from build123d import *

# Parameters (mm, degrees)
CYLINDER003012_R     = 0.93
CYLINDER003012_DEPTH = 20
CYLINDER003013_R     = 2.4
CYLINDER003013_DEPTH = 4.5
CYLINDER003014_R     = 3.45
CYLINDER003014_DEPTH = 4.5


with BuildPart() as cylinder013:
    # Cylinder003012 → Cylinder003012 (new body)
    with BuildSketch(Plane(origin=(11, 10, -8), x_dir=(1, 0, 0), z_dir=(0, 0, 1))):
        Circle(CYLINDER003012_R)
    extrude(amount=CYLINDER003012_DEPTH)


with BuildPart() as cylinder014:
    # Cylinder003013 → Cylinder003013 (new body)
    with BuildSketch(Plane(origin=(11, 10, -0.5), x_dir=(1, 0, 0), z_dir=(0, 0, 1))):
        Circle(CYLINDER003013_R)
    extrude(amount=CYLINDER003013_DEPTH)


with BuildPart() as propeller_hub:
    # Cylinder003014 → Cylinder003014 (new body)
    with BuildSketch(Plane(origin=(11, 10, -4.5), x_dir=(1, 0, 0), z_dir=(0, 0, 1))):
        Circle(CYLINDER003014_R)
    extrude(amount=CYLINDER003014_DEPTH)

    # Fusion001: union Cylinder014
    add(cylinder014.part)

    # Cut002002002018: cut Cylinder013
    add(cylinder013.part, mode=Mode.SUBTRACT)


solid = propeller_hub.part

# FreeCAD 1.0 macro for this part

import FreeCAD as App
import Part
import Sketcher

doc = App.newDocument("Part")
body = doc.addObject("PartDesign::Body", "Body")

# Sketch on XY plane
sketch1 = body.newObject("Sketcher::SketchObject", "Sketch")
sketch1.AttachmentSupport = (doc.getObject("XY_Plane"), [""])
sketch1.MapMode = "FlatFace"
sketch1.AttachmentOffset = App.Placement(App.Vector(0, 0, -8), App.Rotation())
sketch1.addGeometry(Part.Circle(App.Vector(11, 10, 0), App.Vector(0, 0, 1), 0.9), False)
sketch1.addConstraint([
    Sketcher.Constraint("Diameter", 0, 1.86),
    Sketcher.Constraint("DistanceX", -1, 1, 0, 3, 11.0),
    Sketcher.Constraint("DistanceY", -1, 1, 0, 3, 10.0),
])
pad1 = body.newObject("PartDesign::Pad", "Pad")
pad1.Profile = sketch1
pad1.Length = 20
body2 = doc.addObject("PartDesign::Body", "Body001")

# Sketch on XY plane
sketch2 = body2.newObject("Sketcher::SketchObject", "Sketch001")
sketch2.AttachmentSupport = (doc.getObject("XY_Plane001"), [""])
sketch2.MapMode = "FlatFace"
sketch2.AttachmentOffset = App.Placement(App.Vector(0, 0, -0.5), App.Rotation())
sketch2.addGeometry(Part.Circle(App.Vector(11, 10, 0), App.Vector(0, 0, 1), 2.4), False)
sketch2.addConstraint([
    Sketcher.Constraint("Diameter", 0, 4.8),
    Sketcher.Constraint("DistanceX", -1, 1, 0, 3, 11.0),
    Sketcher.Constraint("DistanceY", -1, 1, 0, 3, 10.0),
])
pad2 = body2.newObject("PartDesign::Pad", "Pad001")
pad2.Profile = sketch2
pad2.Length = 4.5
body3 = doc.addObject("PartDesign::Body", "Body002")

# Sketch on XY plane
sketch3 = body3.newObject("Sketcher::SketchObject", "Sketch002")
sketch3.AttachmentSupport = (doc.getObject("XY_Plane002"), [""])
sketch3.MapMode = "FlatFace"
sketch3.AttachmentOffset = App.Placement(App.Vector(0, 0, -4.5), App.Rotation())
sketch3.addGeometry(Part.Circle(App.Vector(11, 10, 0), App.Vector(0, 0, 1), 3.5), False)
sketch3.addConstraint([
    Sketcher.Constraint("Diameter", 0, 6.9),
    Sketcher.Constraint("DistanceX", -1, 1, 0, 3, 11.0),
    Sketcher.Constraint("DistanceY", -1, 1, 0, 3, 10.0),
])
pad3 = body3.newObject("PartDesign::Pad", "Pad002")
pad3.Profile = sketch3
pad3.Length = 4.5
doc.recompute()

boolean = body3.newObject("PartDesign::Boolean", "Boolean")
boolean.Type = "Fuse"
boolean.addObjects([body2])
doc.recompute()

boolean2 = body3.newObject("PartDesign::Boolean", "Boolean001")
boolean2.Type = "Cut"
boolean2.addObjects([body])

doc.recompute()
